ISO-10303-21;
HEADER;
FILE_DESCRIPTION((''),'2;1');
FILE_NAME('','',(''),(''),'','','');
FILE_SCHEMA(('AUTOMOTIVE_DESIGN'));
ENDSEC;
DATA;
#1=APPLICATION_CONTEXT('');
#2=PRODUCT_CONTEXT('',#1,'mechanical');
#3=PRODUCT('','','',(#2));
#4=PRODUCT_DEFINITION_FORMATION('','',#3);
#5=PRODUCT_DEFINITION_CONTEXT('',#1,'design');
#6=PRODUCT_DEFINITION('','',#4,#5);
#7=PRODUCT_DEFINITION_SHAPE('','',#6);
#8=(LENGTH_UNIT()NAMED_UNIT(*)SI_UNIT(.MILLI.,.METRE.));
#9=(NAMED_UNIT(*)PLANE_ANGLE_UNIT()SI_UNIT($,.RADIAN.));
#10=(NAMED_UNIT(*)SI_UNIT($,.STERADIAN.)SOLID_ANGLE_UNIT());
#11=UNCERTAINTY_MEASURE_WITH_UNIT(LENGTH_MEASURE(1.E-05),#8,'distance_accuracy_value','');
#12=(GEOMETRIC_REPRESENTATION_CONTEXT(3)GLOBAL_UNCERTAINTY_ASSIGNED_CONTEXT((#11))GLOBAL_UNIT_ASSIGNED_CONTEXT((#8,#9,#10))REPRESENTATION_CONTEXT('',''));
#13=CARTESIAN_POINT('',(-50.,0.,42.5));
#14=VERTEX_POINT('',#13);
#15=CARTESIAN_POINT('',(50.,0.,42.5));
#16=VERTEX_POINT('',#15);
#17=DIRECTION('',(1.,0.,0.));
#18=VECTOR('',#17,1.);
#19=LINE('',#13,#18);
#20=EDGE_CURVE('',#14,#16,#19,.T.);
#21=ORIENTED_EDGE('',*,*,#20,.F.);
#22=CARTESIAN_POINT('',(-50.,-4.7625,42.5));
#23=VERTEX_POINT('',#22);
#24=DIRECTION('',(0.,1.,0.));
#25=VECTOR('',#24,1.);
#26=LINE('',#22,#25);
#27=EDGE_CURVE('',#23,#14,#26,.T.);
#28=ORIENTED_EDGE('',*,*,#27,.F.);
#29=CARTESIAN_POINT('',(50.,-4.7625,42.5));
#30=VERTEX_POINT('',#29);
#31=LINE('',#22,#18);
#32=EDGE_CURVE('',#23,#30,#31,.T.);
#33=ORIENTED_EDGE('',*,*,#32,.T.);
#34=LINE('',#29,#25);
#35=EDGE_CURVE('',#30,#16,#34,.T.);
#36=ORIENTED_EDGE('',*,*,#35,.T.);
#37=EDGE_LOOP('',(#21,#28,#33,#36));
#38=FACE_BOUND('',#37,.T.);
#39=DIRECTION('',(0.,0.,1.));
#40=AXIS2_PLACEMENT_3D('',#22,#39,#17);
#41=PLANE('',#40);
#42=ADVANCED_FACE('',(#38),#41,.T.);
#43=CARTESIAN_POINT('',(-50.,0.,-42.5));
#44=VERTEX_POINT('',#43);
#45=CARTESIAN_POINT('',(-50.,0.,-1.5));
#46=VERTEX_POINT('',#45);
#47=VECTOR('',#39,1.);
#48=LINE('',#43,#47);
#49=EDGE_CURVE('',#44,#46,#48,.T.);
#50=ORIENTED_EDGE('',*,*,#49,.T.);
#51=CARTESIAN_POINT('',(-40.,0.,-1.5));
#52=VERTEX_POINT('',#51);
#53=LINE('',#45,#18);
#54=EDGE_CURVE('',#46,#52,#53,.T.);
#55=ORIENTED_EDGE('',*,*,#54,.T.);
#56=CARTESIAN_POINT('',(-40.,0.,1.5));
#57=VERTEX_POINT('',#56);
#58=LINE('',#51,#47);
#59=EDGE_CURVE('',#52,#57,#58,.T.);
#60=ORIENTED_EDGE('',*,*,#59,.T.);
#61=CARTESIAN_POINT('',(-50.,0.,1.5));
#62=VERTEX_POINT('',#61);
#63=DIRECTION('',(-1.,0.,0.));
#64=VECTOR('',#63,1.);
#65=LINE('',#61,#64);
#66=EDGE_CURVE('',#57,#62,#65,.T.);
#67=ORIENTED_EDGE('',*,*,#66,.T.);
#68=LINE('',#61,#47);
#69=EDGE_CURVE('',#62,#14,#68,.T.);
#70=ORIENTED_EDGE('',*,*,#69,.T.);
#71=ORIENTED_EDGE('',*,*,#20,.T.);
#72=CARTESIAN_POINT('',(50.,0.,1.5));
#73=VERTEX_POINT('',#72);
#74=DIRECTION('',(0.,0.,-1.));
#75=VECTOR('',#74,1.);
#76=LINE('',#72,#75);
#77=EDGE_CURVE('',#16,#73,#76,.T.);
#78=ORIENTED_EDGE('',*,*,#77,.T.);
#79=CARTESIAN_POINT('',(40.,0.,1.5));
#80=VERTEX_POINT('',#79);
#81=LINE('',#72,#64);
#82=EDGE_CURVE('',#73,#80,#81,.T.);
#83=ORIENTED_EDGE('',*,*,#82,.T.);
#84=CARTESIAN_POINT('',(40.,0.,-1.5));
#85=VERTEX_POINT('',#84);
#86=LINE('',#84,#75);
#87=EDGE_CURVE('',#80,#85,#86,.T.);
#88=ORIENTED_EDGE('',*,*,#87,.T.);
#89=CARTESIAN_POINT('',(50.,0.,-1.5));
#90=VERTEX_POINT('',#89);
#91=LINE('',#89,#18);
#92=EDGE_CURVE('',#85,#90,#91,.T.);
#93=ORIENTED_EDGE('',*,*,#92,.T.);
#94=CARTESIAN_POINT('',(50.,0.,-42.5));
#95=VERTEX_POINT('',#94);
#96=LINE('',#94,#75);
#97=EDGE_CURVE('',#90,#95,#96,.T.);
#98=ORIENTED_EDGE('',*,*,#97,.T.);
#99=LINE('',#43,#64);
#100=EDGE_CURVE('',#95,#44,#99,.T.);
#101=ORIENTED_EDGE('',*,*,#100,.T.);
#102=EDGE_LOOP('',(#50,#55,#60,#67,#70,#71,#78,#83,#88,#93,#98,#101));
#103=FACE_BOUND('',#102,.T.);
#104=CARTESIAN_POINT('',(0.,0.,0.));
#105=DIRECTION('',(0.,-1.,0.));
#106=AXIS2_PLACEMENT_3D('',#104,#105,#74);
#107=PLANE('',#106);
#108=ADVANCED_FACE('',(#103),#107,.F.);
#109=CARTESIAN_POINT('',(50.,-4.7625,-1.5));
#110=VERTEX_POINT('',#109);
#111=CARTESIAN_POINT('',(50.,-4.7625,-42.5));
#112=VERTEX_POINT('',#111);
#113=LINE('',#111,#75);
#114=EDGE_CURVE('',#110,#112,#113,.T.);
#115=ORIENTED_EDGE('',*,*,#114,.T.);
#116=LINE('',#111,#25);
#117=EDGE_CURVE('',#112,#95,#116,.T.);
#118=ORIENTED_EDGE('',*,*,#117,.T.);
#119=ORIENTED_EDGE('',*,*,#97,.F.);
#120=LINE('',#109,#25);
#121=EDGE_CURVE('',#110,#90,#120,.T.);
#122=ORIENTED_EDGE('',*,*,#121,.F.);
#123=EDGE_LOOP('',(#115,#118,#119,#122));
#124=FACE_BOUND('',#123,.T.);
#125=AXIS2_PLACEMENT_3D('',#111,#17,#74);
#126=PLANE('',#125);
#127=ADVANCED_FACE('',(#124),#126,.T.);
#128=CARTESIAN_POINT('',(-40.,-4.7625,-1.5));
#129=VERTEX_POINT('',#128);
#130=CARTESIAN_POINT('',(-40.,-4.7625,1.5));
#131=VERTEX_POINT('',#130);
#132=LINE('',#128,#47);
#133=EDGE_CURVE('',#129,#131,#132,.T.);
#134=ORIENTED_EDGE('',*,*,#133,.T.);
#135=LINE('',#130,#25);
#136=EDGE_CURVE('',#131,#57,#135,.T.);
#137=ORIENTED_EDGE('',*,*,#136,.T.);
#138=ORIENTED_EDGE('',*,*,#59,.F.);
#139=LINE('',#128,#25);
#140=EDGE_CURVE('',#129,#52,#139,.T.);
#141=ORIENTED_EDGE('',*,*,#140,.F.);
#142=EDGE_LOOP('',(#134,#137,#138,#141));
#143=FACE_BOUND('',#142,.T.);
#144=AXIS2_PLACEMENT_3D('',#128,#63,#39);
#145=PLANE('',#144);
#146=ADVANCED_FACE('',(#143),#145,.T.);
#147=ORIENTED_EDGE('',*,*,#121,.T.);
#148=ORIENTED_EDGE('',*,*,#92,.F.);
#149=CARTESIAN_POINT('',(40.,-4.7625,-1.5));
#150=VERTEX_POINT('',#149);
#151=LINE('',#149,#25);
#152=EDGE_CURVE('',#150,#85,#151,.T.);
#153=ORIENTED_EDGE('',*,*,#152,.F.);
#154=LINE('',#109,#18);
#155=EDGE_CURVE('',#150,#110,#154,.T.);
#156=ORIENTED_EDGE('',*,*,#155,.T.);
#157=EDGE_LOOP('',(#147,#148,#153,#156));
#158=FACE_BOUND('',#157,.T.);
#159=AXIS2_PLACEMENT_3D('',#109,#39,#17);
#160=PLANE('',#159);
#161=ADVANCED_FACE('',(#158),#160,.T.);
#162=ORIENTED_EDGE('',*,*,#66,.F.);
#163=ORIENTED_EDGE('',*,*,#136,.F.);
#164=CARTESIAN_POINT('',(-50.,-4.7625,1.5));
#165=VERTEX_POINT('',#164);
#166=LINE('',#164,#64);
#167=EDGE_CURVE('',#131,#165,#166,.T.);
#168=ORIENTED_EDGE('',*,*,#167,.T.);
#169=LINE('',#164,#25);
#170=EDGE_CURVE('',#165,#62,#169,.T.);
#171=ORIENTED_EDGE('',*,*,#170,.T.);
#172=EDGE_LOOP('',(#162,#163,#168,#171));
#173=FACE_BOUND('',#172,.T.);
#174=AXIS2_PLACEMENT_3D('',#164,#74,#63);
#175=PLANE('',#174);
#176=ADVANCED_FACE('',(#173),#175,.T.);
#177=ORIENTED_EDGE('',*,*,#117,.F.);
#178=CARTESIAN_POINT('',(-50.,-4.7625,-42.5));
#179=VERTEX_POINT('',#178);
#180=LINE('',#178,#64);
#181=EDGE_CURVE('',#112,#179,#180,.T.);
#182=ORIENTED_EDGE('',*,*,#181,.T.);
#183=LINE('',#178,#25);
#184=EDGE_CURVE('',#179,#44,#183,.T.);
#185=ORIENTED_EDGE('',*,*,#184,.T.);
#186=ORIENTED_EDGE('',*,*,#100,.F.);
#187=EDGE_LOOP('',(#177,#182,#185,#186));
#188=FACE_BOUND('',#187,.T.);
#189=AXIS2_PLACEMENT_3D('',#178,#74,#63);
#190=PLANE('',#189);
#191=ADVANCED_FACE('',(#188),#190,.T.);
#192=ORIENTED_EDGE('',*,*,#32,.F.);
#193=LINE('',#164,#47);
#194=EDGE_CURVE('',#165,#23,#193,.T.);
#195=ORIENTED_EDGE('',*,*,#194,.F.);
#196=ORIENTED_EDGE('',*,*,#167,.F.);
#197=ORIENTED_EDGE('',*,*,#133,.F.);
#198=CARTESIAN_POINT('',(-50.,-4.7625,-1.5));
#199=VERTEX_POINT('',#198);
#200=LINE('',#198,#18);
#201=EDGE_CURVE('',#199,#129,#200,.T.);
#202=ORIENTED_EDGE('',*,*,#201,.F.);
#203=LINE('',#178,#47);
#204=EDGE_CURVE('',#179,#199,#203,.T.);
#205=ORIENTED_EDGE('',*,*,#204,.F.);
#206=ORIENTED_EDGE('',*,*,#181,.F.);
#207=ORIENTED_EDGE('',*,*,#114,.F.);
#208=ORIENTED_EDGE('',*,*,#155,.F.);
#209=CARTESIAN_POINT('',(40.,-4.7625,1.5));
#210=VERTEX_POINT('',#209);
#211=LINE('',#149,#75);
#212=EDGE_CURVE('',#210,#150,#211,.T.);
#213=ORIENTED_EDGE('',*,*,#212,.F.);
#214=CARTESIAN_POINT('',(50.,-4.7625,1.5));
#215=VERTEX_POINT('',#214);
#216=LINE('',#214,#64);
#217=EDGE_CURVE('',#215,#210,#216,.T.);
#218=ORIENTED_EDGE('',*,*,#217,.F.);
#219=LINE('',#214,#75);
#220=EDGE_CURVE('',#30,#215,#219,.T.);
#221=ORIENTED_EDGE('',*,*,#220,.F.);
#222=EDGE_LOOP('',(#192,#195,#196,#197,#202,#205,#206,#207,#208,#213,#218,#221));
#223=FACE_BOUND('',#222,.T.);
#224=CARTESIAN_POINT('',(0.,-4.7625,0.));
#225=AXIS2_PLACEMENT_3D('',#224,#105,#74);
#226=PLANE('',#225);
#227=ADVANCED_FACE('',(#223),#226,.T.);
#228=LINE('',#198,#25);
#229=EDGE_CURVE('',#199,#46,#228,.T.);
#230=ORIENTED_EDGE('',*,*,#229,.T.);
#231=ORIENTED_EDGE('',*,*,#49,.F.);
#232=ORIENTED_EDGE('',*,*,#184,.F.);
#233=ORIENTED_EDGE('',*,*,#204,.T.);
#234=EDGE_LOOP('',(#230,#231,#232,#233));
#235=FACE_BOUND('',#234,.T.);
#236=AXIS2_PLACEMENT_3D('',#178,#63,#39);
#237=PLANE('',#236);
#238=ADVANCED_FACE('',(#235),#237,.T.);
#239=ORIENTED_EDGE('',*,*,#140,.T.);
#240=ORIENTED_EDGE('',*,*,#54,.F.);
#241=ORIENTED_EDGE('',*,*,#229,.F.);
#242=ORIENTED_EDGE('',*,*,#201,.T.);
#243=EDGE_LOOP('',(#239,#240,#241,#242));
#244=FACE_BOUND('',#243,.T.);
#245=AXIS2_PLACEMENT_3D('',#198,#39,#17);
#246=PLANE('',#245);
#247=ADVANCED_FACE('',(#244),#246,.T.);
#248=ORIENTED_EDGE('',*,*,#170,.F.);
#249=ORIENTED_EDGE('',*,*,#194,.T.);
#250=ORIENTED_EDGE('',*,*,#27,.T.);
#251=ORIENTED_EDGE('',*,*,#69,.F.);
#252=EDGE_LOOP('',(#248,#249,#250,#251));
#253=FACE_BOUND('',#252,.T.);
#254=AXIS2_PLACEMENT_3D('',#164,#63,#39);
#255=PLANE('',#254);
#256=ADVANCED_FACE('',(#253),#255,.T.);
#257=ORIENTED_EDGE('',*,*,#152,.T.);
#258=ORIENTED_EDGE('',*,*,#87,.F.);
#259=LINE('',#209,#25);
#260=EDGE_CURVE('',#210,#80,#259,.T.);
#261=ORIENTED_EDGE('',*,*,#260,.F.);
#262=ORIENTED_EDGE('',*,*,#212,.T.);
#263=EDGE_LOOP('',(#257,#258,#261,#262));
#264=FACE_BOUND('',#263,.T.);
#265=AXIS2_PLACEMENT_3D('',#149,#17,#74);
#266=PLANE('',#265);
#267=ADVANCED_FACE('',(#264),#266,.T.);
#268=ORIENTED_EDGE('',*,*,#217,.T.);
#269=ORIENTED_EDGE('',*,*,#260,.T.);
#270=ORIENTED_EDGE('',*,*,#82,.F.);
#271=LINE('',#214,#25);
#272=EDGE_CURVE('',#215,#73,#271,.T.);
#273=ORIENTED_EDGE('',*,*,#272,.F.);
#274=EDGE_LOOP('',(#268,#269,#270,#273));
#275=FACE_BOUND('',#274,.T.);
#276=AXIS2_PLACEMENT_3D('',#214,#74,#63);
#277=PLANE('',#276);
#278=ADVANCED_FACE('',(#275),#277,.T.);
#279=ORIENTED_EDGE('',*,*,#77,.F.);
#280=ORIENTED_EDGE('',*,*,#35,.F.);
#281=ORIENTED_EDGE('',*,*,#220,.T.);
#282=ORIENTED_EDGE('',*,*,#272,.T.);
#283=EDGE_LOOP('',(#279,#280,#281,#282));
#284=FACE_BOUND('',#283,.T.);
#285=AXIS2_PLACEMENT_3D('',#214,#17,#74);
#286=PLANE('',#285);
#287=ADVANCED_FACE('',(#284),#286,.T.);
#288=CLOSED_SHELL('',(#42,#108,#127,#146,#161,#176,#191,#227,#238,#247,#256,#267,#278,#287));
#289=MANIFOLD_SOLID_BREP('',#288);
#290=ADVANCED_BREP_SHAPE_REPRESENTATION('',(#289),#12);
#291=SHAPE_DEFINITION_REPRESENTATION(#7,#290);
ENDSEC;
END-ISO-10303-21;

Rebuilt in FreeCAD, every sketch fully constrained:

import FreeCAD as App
import Part
import Sketcher

V = App.Vector

doc = App.newDocument("Part")
body = doc.addObject("PartDesign::Body", "Body")

# Sketch on XZ plane
sketch1 = doc.addObject("Sketcher::SketchObject", "Sketch")
body.addObject(sketch1)
sketch1.AttachmentSupport = (doc.XZ_Plane, [""])
sketch1.MapMode = "FlatFace"
sketch1.addGeometry([
    Part.LineSegment(V(-50, 42.5, 0), V(50, 42.5, 0)),  # 0
    Part.LineSegment(V(50, 42.5, 0), V(50, 1.5, 0)),  # 1
    Part.LineSegment(V(50, 1.5, 0), V(40, 1.5, 0)),  # 2
    Part.LineSegment(V(40, 1.5, 0), V(40, -1.5, 0)),  # 3
    Part.LineSegment(V(40, -1.5, 0), V(50, -1.5, 0)),  # 4
    Part.LineSegment(V(50, -1.5, 0), V(50, -42.5, 0)),  # 5
    Part.LineSegment(V(50, -42.5, 0), V(-50, -42.5, 0)),  # 6
    Part.LineSegment(V(-50, -42.5, 0), V(-50, -1.5, 0)),  # 7
    Part.LineSegment(V(-50, -1.5, 0), V(-40, -1.5, 0)),  # 8
    Part.LineSegment(V(-40, -1.5, 0), V(-40, 1.5, 0)),  # 9
    Part.LineSegment(V(-40, 1.5, 0), V(-50, 1.5, 0)),  # 10
    Part.LineSegment(V(-50, 1.5, 0), V(-50, 42.5, 0)),  # 11
], False)
sketch1.addConstraint([
    Sketcher.Constraint("Coincident", 0, 2, 1, 1),
    Sketcher.Constraint("Coincident", 1, 2, 2, 1),
    Sketcher.Constraint("Coincident", 2, 2, 3, 1),
    Sketcher.Constraint("Coincident", 3, 2, 4, 1),
    Sketcher.Constraint("Coincident", 4, 2, 5, 1),
    Sketcher.Constraint("Coincident", 5, 2, 6, 1),
    Sketcher.Constraint("Coincident", 6, 2, 7, 1),
    Sketcher.Constraint("Coincident", 7, 2, 8, 1),
    Sketcher.Constraint("Coincident", 8, 2, 9, 1),
    Sketcher.Constraint("Coincident", 9, 2, 10, 1),
    Sketcher.Constraint("Coincident", 10, 2, 11, 1),
    Sketcher.Constraint("Coincident", 11, 2, 0, 1),
    Sketcher.Constraint("Horizontal", 0),
    Sketcher.Constraint("Vertical", 1),
    Sketcher.Constraint("Horizontal", 2),
    Sketcher.Constraint("Vertical", 3),
    Sketcher.Constraint("Horizontal", 4),
    Sketcher.Constraint("Vertical", 5),
    Sketcher.Constraint("Horizontal", 6),
    Sketcher.Constraint("Vertical", 7),
    Sketcher.Constraint("Horizontal", 8),
    Sketcher.Constraint("Vertical", 9),
    Sketcher.Constraint("Horizontal", 10),
    Sketcher.Constraint("Vertical", 11),
    Sketcher.Constraint("Symmetric", 0, 2, 6, 2, -1, 1),
    Sketcher.Constraint("Symmetric", 2, 2, 8, 2, -1, 1),
    Sketcher.Constraint("Symmetric", 4, 2, 10, 2, -1, 1),
    Sketcher.Constraint("Symmetric", 4, 2, 7, 2, -2),
    Sketcher.Constraint("DistanceX", 0, 1, 0, 2, 100.0),
    Sketcher.Constraint("DistanceX", 2, 2, 2, 1, 10.0),
    Sketcher.Constraint("DistanceY", 1, 2, 1, 1, 41.0),
    Sketcher.Constraint("DistanceY", 3, 2, 3, 1, 3.0),
])
pad1 = doc.addObject("PartDesign::Pad", "Pad")
body.addObject(pad1)
pad1.Profile = sketch1
pad1.Length = 4.7625

doc.recompute()
